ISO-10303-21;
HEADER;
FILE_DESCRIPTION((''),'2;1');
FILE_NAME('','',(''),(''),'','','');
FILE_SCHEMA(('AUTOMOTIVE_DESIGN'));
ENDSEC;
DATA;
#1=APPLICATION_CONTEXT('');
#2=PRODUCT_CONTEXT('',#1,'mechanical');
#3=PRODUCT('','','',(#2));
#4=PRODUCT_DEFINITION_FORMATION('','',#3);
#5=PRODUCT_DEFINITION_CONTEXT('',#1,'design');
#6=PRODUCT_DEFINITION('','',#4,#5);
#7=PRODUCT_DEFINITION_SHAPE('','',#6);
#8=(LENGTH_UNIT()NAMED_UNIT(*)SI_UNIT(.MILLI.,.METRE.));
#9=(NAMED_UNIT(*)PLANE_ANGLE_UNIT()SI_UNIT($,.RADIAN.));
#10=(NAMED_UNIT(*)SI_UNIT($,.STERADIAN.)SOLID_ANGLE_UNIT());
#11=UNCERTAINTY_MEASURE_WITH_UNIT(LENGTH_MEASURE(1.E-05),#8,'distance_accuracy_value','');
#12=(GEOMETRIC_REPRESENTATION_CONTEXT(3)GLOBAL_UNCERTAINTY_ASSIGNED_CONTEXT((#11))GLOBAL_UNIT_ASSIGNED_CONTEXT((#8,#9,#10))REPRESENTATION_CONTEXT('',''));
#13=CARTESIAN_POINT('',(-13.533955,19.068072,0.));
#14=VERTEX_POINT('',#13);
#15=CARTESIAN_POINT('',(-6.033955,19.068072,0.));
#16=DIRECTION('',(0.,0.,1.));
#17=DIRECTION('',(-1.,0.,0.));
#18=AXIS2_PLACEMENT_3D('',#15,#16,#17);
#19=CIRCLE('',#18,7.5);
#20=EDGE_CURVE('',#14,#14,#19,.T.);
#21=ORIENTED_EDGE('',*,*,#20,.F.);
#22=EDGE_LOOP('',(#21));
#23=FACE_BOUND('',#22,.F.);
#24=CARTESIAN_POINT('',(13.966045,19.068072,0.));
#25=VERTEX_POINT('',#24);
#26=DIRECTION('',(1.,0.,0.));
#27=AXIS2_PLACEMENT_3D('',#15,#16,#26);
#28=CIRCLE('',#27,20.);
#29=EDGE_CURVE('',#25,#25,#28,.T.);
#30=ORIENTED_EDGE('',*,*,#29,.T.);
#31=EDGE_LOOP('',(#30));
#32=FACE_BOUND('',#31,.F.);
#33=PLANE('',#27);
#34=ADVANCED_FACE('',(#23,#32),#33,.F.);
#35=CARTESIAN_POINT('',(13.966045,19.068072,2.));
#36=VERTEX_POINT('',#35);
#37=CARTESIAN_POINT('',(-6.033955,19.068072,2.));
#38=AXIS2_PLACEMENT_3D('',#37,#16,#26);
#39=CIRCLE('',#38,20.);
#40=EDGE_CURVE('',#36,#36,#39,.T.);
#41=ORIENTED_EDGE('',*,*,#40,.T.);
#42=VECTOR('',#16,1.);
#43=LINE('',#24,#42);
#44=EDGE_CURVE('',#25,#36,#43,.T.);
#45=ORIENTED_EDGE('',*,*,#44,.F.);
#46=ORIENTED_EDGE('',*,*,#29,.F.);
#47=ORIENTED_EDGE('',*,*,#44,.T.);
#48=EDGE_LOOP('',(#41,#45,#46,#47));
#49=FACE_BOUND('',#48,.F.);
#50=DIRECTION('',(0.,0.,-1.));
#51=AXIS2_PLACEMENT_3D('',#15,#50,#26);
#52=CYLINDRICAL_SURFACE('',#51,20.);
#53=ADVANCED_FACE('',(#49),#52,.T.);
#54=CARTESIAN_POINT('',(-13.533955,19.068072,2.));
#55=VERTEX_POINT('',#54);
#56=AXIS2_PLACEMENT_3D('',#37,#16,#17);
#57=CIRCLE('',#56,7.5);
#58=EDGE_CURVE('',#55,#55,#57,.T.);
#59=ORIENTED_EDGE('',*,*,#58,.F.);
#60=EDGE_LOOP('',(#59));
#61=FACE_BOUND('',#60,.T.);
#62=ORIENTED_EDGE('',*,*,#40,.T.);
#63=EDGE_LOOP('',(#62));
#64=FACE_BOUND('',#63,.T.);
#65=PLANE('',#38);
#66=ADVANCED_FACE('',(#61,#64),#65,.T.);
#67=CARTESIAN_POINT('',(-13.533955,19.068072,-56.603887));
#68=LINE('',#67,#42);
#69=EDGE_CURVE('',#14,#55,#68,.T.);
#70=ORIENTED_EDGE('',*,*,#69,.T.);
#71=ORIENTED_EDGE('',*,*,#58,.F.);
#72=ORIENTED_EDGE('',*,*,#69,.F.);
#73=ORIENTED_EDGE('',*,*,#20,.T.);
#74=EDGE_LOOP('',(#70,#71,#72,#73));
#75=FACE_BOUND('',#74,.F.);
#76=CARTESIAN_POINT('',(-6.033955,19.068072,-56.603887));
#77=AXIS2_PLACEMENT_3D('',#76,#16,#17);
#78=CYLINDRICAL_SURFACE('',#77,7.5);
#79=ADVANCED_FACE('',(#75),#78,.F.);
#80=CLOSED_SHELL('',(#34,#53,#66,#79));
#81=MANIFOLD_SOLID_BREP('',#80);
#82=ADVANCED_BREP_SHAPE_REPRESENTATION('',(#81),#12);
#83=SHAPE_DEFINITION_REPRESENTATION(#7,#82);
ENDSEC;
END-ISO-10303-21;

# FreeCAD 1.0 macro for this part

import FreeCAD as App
import Part
import Sketcher

doc = App.newDocument("Part")
body = doc.addObject("PartDesign::Body", "Body")

# Sketch on XY plane
sketch1 = body.newObject("Sketcher::SketchObject", "Sketch")
sketch1.AttachmentSupport = (doc.getObject("XY_Plane"), [""])
sketch1.MapMode = "FlatFace"
sketch1.addGeometry(Part.Circle(App.Vector(-6, 19, 0), App.Vector(0, 0, 1), 20), False)
sketch1.addConstraint([
    Sketcher.Constraint("Diameter", 0, 40.0),
    Sketcher.Constraint("DistanceX", 0, 3, -1, 1, 6.033955),
    Sketcher.Constraint("DistanceY", -1, 1, 0, 3, 19.068072),
])
pad1 = body.newObject("PartDesign::Pad", "Pad")
pad1.Profile = sketch1
pad1.Length = 2

# Sketch on XY plane
sketch2 = body.newObject("Sketcher::SketchObject", "Sketch001")
sketch2.AttachmentSupport = (doc.getObject("XY_Plane"), [""])
sketch2.MapMode = "FlatFace"
sketch2.addGeometry(Part.Circle(App.Vector(-6, 19, 0), App.Vector(0, 0, 1), 8), False)
sketch2.addConstraint([
    Sketcher.Constraint("Diameter", 0, 15.0),
    Sketcher.Constraint("DistanceX", 0, 3, -1, 1, 6.033955),
    Sketcher.Constraint("DistanceY", -1, 1, 0, 3, 19.068072),
])
doc.recompute()
hole = body.newObject("PartDesign::Hole", "Hole")
hole.Profile = sketch2
hole.ThreadType = "None"
hole.Diameter = 15
hole.DepthType = "ThroughAll"
hole.Reversed = True

doc.recompute()
